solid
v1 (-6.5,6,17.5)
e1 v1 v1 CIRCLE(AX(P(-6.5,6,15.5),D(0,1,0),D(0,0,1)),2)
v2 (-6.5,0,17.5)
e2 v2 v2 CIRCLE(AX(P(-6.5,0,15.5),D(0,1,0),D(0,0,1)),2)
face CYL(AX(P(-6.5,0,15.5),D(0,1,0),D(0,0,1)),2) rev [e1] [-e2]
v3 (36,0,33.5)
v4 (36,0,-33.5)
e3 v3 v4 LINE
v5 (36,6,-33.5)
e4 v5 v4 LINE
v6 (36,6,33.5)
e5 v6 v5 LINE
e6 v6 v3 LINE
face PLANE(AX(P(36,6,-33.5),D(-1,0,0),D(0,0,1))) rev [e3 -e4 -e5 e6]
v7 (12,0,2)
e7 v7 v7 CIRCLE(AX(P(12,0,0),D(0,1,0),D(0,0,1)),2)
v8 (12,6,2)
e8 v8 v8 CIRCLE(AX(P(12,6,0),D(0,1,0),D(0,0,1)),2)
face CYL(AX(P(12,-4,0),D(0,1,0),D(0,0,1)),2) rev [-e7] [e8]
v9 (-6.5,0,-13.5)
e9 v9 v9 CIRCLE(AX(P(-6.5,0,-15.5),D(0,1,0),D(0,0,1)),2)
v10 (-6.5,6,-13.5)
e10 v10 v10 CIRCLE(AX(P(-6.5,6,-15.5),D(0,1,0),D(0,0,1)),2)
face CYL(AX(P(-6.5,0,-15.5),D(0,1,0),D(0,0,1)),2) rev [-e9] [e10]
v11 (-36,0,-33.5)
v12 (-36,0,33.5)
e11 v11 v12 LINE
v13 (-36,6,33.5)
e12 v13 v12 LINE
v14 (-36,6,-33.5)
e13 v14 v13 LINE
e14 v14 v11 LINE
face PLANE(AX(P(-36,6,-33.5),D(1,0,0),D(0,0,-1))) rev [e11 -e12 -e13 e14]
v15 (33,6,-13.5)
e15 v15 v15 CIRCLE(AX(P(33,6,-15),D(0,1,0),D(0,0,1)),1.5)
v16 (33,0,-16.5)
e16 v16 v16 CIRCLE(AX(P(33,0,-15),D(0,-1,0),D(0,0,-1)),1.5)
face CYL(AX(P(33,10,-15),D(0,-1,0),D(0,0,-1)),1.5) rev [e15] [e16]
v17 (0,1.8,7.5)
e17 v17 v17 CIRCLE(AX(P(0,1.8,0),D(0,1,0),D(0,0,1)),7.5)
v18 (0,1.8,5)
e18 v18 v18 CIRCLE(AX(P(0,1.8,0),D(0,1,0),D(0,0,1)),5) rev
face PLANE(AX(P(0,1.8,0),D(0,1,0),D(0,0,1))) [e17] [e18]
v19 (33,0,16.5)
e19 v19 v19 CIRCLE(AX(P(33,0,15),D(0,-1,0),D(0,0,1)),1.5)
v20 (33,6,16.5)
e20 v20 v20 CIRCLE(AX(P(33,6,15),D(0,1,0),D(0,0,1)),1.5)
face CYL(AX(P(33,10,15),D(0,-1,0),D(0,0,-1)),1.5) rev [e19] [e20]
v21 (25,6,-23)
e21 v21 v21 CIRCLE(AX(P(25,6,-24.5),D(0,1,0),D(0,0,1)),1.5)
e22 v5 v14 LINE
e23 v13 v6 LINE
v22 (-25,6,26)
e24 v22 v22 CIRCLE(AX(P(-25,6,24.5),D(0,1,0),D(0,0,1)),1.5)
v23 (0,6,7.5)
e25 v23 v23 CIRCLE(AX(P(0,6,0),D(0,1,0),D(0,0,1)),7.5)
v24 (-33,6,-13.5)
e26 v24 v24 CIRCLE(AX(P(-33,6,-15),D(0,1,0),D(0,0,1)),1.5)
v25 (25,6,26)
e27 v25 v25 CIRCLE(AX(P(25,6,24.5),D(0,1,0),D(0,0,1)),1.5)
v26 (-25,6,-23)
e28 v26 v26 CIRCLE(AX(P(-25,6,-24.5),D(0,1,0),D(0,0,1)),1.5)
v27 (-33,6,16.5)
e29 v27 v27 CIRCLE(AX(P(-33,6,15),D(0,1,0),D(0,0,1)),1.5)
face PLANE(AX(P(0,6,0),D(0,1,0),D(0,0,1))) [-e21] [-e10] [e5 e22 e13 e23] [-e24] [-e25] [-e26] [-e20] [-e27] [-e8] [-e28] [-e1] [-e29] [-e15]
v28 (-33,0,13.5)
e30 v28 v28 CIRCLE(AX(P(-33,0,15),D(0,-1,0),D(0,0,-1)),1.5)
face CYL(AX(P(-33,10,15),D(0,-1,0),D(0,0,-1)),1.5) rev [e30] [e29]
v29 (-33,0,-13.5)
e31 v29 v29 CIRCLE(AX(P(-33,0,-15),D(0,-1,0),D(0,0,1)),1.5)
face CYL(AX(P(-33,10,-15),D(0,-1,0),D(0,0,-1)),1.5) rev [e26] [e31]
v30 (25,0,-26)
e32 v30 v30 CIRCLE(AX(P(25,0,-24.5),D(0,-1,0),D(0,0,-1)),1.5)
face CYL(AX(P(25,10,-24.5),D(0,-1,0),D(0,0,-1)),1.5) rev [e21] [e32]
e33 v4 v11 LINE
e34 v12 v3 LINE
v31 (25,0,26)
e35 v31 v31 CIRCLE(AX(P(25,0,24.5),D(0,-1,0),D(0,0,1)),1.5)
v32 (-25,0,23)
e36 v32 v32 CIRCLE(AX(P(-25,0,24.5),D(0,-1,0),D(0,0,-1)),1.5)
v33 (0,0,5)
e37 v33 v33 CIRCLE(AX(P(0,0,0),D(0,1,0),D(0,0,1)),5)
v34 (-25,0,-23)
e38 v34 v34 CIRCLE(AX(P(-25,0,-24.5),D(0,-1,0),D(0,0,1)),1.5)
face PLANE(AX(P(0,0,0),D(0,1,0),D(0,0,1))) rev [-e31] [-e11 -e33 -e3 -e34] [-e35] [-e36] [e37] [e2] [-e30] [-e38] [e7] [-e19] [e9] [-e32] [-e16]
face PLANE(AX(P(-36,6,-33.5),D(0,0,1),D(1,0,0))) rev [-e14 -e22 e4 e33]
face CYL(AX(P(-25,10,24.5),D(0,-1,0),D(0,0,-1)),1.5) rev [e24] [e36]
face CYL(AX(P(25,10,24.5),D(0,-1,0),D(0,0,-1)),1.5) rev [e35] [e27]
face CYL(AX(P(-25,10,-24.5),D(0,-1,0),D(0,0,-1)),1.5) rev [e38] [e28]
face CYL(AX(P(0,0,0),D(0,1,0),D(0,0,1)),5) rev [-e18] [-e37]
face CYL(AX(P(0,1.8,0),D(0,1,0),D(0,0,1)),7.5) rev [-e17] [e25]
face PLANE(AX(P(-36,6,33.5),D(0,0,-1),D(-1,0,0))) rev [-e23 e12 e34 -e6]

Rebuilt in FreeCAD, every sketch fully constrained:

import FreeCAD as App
import Part
import Sketcher
from FreeCAD import Vector


def add_polygon(sketch, points):
    """Adds a closed chain of lines whose ends are joined by coincident constraints."""
    first, n = sketch.GeometryCount, len(points)
    for a, b in zip(points, points[1:] + points[:1]):
        sketch.addGeometry(Part.LineSegment(App.Vector(*a, 0), App.Vector(*b, 0)), False)
    for i in range(n):
        sketch.addConstraint(Sketcher.Constraint("Coincident", first + i, 2, first + (i + 1) % n, 1))

doc = App.newDocument("Part")
body = doc.addObject("PartDesign::Body", "Body")

sketch1 = body.newObject("Sketcher::SketchObject", "Sketch")
sketch1.AttachmentSupport = (doc.getObject("XZ_Plane"), [""])
sketch1.MapMode = "FlatFace"
add_polygon(sketch1, [(-36, -34), (-36, 34), (36, 34), (36, -34)])
sketch1.addConstraint(Sketcher.Constraint("Vertical", 0))
sketch1.addConstraint(Sketcher.Constraint("Horizontal", 1))
sketch1.addConstraint(Sketcher.Constraint("Vertical", 2))
sketch1.addConstraint(Sketcher.Constraint("Horizontal", 3))
sketch1.addConstraint(Sketcher.Constraint("Symmetric", 0, 2, 2, 2, -1, 1))
sketch1.addConstraint(Sketcher.Constraint("DistanceX", 1, 1, 1, 2, 72.0))
sketch1.addConstraint(Sketcher.Constraint("DistanceY", 0, 1, 0, 2, 67.0))
pad1 = body.newObject("PartDesign::Pad", "Pad")
pad1.Profile = sketch1
pad1.Length = 6
pad1.Reversed = True

sketch2 = body.newObject("Sketcher::SketchObject", "Sketch001")
sketch2.AttachmentSupport = (doc.getObject("XZ_Plane"), [""])
sketch2.MapMode = "FlatFace"
sketch2.AttachmentOffset = App.Placement(Vector(0, 0, -6), App.Rotation())
sketch2.addGeometry(Part.Circle(Vector(0, 0, 0), Vector(0, 0, 1), 5), False)
sketch2.addGeometry(Part.Circle(Vector(-6.5, -15.5, 0), Vector(0, 0, 1), 2), False)
sketch2.addGeometry(Part.Circle(Vector(-6.5, 15.5, 0), Vector(0, 0, 1), 2), False)
sketch2.addConstraint(Sketcher.Constraint("Coincident", 0, 3, -1, 1))
sketch2.addConstraint(Sketcher.Constraint("Equal", 1, 2))
sketch2.addConstraint(Sketcher.Constraint("Symmetric", 1, 3, 2, 3, -1))
sketch2.addConstraint(Sketcher.Constraint("Diameter", 0, 10.0))
sketch2.addConstraint(Sketcher.Constraint("Diameter", 1, 4.0))
sketch2.addConstraint(Sketcher.Constraint("DistanceY", 1, 3, 2, 3, 31.0))
sketch2.addConstraint(Sketcher.Constraint("DistanceX", 1, 3, -1, 1, 6.5))
pocket1 = body.newObject("PartDesign::Pocket", "Pocket")
pocket1.Profile = sketch2
pocket1.Length = 6
pocket1.Reversed = True

sketch3 = body.newObject("Sketcher::SketchObject", "Sketch002")
sketch3.AttachmentSupport = (doc.getObject("XZ_Plane"), [""])
sketch3.MapMode = "FlatFace"
sketch3.AttachmentOffset = App.Placement(Vector(0, 0, -6), App.Rotation())
sketch3.addGeometry(Part.Circle(Vector(0, 0, 0), Vector(0, 0, 1), 8), False)
sketch3.addConstraint(Sketcher.Constraint("Coincident", 0, 3, -1, 1))
sketch3.addConstraint(Sketcher.Constraint("Diameter", 0, 15.0))
pocket2 = body.newObject("PartDesign::Pocket", "Pocket001")
pocket2.Profile = sketch3
pocket2.Length = 4.2
pocket2.Reversed = True

sketch4 = body.newObject("Sketcher::SketchObject", "Sketch003")
sketch4.AttachmentSupport = (doc.getObject("XZ_Plane"), [""])
sketch4.MapMode = "FlatFace"
sketch4.AttachmentOffset = App.Placement(Vector(0, 0, -6), App.Rotation())
sketch4.addGeometry(Part.Circle(Vector(12, 0, 0), Vector(0, 0, 1), 2), False)
sketch4.addConstraint(Sketcher.Constraint("PointOnObject", 0, 3, -1))
sketch4.addConstraint(Sketcher.Constraint("Diameter", 0, 4.0))
sketch4.addConstraint(Sketcher.Constraint("DistanceX", -1, 1, 0, 3, 12.0))
pocket3 = body.newObject("PartDesign::Pocket", "Pocket002")
pocket3.Profile = sketch4
pocket3.Length = 10
pocket3.Reversed = True

sketch5 = body.newObject("Sketcher::SketchObject", "Sketch004")
sketch5.AttachmentSupport = (doc.getObject("XZ_Plane"), [""])
sketch5.MapMode = "FlatFace"
sketch5.addGeometry(Part.Circle(Vector(-25, 24.5, 0), Vector(0, 0, 1), 1.5), False)
sketch5.addGeometry(Part.Circle(Vector(25, 24.5, 0), Vector(0, 0, 1), 1.5), False)
sketch5.addGeometry(Part.Circle(Vector(-33, 15, 0), Vector(0, 0, 1), 1.5), False)
sketch5.addGeometry(Part.Circle(Vector(33, 15, 0), Vector(0, 0, 1), 1.5), False)
sketch5.addGeometry(Part.Circle(Vector(33, -15, 0), Vector(0, 0, 1), 1.5), False)
sketch5.addGeometry(Part.Circle(Vector(-33, -15, 0), Vector(0, 0, 1), 1.5), False)
sketch5.addGeometry(Part.Circle(Vector(25, -24.5, 0), Vector(0, 0, 1), 1.5), False)
sketch5.addGeometry(Part.Circle(Vector(-25, -24.5, 0), Vector(0, 0, 1), 1.5), False)
sketch5.addConstraint(Sketcher.Constraint("Equal", 0, 1))
sketch5.addConstraint(Sketcher.Constraint("Equal", 1, 2))
sketch5.addConstraint(Sketcher.Constraint("Equal", 2, 3))
sketch5.addConstraint(Sketcher.Constraint("Equal", 3, 4))
sketch5.addConstraint(Sketcher.Constraint("Equal", 4, 5))
sketch5.addConstraint(Sketcher.Constraint("Equal", 5, 6))
sketch5.addConstraint(Sketcher.Constraint("Equal", 6, 7))
sketch5.addConstraint(Sketcher.Constraint("Symmetric", 2, 3, 4, 3, -1, 1))
sketch5.addConstraint(Sketcher.Constraint("Symmetric", 3, 3, 5, 3, -1, 1))
sketch5.addConstraint(Sketcher.Constraint("Symmetric", 0, 3, 6, 3, -1, 1))
sketch5.addConstraint(Sketcher.Constraint("Symmetric", 1, 3, 7, 3, -1, 1))
sketch5.addConstraint(Sketcher.Constraint("Symmetric", 0, 3, 1, 3, -2))
sketch5.addConstraint(Sketcher.Constraint("Symmetric", 2, 3, 3, 3, -2))
sketch5.addConstraint(Sketcher.Constraint("Diameter", 0, 3.0))
sketch5.addConstraint(Sketcher.Constraint("DistanceX", 0, 3, -1, 1, 25.0))
sketch5.addConstraint(Sketcher.Constraint("DistanceX", 2, 3, -1, 1, 33.0))
sketch5.addConstraint(Sketcher.Constraint("DistanceY", -1, 1, 2, 3, 15.0))
sketch5.addConstraint(Sketcher.Constraint("DistanceY", 6, 3, 1, 3, 49.0))
pocket4 = body.newObject("PartDesign::Pocket", "Pocket003")
pocket4.Profile = sketch5
pocket4.Length = 10

doc.recompute()
